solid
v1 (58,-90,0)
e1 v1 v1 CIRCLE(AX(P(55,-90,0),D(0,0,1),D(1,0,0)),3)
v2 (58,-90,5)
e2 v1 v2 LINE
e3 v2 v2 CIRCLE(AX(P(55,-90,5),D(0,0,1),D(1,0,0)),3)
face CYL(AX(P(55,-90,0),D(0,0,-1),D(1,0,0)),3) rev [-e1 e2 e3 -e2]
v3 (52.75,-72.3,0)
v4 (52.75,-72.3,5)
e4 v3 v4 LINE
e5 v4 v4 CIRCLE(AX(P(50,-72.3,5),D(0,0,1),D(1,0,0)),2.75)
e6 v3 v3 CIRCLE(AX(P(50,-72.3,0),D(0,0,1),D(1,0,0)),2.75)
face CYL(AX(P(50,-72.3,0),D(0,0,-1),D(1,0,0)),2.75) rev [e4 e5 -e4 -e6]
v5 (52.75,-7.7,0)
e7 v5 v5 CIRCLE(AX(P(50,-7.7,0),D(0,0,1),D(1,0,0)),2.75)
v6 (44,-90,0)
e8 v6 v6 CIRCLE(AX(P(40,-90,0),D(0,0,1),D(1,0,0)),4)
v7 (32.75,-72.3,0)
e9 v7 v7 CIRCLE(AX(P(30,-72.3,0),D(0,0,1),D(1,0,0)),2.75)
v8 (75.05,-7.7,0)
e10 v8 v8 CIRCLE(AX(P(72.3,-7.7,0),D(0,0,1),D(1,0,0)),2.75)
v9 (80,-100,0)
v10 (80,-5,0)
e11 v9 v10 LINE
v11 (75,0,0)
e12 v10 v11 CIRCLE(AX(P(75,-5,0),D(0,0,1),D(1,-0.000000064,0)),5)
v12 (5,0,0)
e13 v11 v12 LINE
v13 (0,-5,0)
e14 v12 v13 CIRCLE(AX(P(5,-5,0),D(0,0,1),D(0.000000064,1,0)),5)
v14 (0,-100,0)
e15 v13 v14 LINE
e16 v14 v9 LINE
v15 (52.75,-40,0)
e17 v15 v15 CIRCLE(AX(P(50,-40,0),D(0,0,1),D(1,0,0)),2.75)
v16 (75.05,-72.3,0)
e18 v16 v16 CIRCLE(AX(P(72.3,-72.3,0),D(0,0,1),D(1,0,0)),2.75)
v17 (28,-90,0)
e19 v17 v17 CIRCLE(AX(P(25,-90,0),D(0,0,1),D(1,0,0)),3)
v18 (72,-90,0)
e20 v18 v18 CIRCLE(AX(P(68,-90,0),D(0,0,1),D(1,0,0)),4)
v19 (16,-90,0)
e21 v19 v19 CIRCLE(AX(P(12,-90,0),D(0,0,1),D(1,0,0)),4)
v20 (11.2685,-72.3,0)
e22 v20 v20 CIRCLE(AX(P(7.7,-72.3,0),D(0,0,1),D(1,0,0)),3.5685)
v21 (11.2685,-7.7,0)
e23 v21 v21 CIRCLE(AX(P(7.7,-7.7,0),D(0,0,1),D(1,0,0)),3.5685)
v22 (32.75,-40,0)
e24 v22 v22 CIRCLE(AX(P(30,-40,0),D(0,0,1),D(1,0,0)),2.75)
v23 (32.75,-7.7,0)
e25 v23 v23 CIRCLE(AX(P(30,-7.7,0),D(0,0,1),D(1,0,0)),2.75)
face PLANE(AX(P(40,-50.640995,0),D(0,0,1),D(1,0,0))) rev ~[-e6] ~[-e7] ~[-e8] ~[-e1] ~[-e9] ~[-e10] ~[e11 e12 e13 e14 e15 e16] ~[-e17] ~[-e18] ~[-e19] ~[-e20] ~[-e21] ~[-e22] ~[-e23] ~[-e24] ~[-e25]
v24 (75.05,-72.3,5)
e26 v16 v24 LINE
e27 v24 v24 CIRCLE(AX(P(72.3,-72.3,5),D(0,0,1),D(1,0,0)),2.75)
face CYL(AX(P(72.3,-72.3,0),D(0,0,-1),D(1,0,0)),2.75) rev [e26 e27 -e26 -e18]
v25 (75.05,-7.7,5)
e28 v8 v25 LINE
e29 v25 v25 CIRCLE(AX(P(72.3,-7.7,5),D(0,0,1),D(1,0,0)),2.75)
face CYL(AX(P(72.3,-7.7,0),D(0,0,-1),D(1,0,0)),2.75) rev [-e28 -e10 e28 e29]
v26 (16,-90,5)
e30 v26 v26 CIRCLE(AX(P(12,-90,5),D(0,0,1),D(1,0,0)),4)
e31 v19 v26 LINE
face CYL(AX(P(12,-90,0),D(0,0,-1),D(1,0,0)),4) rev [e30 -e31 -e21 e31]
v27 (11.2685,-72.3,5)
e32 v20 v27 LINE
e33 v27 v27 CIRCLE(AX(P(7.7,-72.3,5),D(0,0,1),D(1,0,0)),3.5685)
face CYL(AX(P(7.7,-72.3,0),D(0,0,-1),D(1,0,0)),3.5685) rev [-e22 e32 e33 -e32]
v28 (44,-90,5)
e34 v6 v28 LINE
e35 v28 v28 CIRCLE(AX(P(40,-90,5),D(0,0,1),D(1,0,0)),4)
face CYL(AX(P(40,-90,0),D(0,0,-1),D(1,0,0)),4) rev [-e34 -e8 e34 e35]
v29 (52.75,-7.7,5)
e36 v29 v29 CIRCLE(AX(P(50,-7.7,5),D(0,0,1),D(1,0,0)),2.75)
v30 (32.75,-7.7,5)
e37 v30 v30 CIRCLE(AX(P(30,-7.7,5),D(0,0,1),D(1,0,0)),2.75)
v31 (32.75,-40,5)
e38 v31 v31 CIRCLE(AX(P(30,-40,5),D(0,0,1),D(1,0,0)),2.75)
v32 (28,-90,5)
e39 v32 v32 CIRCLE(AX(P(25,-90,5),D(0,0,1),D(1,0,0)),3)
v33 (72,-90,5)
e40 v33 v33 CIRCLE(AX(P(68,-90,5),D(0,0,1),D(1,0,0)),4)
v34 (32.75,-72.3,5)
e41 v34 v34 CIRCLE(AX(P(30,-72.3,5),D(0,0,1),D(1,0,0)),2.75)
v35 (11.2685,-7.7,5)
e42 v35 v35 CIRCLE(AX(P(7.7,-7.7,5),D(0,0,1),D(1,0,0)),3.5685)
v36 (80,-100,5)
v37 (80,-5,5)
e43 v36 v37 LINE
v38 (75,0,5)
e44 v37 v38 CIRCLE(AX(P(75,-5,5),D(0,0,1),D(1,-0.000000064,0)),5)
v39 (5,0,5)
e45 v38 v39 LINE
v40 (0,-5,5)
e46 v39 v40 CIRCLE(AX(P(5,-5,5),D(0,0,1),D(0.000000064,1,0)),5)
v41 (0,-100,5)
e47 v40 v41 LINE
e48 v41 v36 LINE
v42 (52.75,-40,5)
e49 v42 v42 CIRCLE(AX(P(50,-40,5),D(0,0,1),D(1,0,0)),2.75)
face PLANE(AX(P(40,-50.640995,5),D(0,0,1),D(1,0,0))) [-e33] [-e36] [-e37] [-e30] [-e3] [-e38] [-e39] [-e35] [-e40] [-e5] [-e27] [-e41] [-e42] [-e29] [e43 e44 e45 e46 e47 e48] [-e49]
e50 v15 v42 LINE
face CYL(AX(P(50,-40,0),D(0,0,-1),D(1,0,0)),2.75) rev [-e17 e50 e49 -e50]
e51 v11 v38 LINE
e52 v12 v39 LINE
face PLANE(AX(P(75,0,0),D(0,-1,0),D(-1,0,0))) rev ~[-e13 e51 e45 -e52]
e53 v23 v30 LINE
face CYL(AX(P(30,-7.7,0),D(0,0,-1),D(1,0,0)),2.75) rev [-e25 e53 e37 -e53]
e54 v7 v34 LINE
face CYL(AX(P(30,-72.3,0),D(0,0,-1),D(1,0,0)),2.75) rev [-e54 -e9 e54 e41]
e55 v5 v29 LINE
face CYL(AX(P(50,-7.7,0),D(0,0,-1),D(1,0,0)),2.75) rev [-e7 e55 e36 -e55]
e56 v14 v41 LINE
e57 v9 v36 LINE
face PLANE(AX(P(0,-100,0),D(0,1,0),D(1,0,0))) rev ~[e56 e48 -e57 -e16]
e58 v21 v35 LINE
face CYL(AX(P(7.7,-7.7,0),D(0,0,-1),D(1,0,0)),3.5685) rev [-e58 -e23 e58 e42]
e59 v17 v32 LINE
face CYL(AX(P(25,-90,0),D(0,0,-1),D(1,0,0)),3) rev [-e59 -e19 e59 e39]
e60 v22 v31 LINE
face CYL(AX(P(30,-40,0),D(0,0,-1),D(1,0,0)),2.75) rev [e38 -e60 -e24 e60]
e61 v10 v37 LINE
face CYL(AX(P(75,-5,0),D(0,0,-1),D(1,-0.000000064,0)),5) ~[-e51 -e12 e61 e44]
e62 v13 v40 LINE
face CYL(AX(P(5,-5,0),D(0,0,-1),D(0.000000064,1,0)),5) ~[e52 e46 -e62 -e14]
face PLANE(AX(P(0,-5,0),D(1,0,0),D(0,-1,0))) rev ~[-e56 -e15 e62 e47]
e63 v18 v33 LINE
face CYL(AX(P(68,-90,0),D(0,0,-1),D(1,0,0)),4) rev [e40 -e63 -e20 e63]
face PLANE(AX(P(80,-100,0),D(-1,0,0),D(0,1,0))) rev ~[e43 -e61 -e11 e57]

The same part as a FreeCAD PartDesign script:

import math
import FreeCAD as App
import Part
import Sketcher

V = App.Vector
Q = App.Units.Quantity

doc = App.newDocument("Part")
body = doc.addObject("PartDesign::Body", "Body")

# Sketch on XY plane
sketch1 = body.newObject("Sketcher::SketchObject", "Sketch")
sketch1.AttachmentSupport = (doc.getObject("XY_Plane"), [""])
sketch1.MapMode = "FlatFace"
sketch1.addGeometry(Part.ArcOfCircle(Part.Circle(V(5, -5, 0), V(0, 0, 1), 5), math.radians(90), math.radians(180)), False)
sketch1.addGeometry(Part.LineSegment(V(0, -5, 0), V(0, -100, 0)), False)
sketch1.addGeometry(Part.LineSegment(V(0, -100, 0), V(80, -100, 0)), False)
sketch1.addGeometry(Part.LineSegment(V(80, -100, 0), V(80, -5, 0)), False)
sketch1.addGeometry(Part.ArcOfCircle(Part.Circle(V(75, -5, 0), V(0, 0, 1), 5), math.radians(0), math.radians(90)), False)
sketch1.addGeometry(Part.LineSegment(V(75, 0, 0), V(5, 0, 0)), False)
sketch1.addGeometry(Part.Circle(V(12, -90, 0), V(0, 0, 1), 4), False)
sketch1.addGeometry(Part.Circle(V(7.7, -72.3, 0), V(0, 0, 1), 3.6), False)
sketch1.addGeometry(Part.Circle(V(25, -90, 0), V(0, 0, 1), 3), False)
sketch1.addGeometry(Part.Circle(V(30, -72.3, 0), V(0, 0, 1), 2.8), False)
sketch1.addGeometry(Part.Circle(V(40, -90, 0), V(0, 0, 1), 4), False)
sketch1.addGeometry(Part.Circle(V(55, -90, 0), V(0, 0, 1), 3), False)
sketch1.addGeometry(Part.Circle(V(50, -72.3, 0), V(0, 0, 1), 2.8), False)
sketch1.addGeometry(Part.Circle(V(68, -90, 0), V(0, 0, 1), 4), False)
sketch1.addGeometry(Part.Circle(V(72.3, -72.3, 0), V(0, 0, 1), 2.8), False)
sketch1.addGeometry(Part.Circle(V(30, -40, 0), V(0, 0, 1), 2.8), False)
sketch1.addGeometry(Part.Circle(V(7.7, -7.7, 0), V(0, 0, 1), 3.6), False)
sketch1.addGeometry(Part.Circle(V(30, -7.7, 0), V(0, 0, 1), 2.8), False)
sketch1.addGeometry(Part.Circle(V(50, -40, 0), V(0, 0, 1), 2.8), False)
sketch1.addGeometry(Part.Circle(V(50, -7.7, 0), V(0, 0, 1), 2.8), False)
sketch1.addGeometry(Part.Circle(V(72.3, -7.7, 0), V(0, 0, 1), 2.8), False)
sketch1.addConstraint(Sketcher.Constraint("Tangent", 0, 2, 1, 1))
sketch1.addConstraint(Sketcher.Constraint("Coincident", 1, 2, 2, 1))
sketch1.addConstraint(Sketcher.Constraint("Coincident", 2, 2, 3, 1))
sketch1.addConstraint(Sketcher.Constraint("Tangent", 3, 2, 4, 1))
sketch1.addConstraint(Sketcher.Constraint("Tangent", 4, 2, 5, 1))
sketch1.addConstraint(Sketcher.Constraint("Tangent", 5, 2, 0, 1))
sketch1.addConstraint(Sketcher.Constraint("Vertical", 1))
sketch1.addConstraint(Sketcher.Constraint("Horizontal", 2))
sketch1.addConstraint(Sketcher.Constraint("Vertical", 3))
sketch1.addConstraint(Sketcher.Constraint("Horizontal", 5))
sketch1.addConstraint(Sketcher.Constraint("Equal", 0, 4))
sketch1.addConstraint(Sketcher.Constraint("Equal", 6, 10))
sketch1.addConstraint(Sketcher.Constraint("Equal", 8, 11))
sketch1.addConstraint(Sketcher.Constraint("Equal", 9, 12))
sketch1.addConstraint(Sketcher.Constraint("Equal", 10, 13))
sketch1.addConstraint(Sketcher.Constraint("Equal", 12, 14))
sketch1.addConstraint(Sketcher.Constraint("Equal", 14, 15))
sketch1.addConstraint(Sketcher.Constraint("Equal", 7, 16))
sketch1.addConstraint(Sketcher.Constraint("Equal", 15, 17))
sketch1.addConstraint(Sketcher.Constraint("Equal", 17, 18))
sketch1.addConstraint(Sketcher.Constraint("Equal", 18, 19))
sketch1.addConstraint(Sketcher.Constraint("Equal", 19, 20))
sketch1.addConstraint(Sketcher.Constraint("PointOnObject", 0, 2, -2))
sketch1.addConstraint(Sketcher.Constraint("PointOnObject", 4, 2, -1))
sketch1.addConstraint(Sketcher.Constraint("Horizontal", 6, 3, 8, 3))
sketch1.addConstraint(Sketcher.Constraint("Horizontal", 7, 3, 9, 3))
sketch1.addConstraint(Sketcher.Constraint("Horizontal", 8, 3, 10, 3))
sketch1.addConstraint(Sketcher.Constraint("Horizontal", 10, 3, 11, 3))
sketch1.addConstraint(Sketcher.Constraint("Horizontal", 9, 3, 12, 3))
sketch1.addConstraint(Sketcher.Constraint("Horizontal", 11, 3, 13, 3))
sketch1.addConstraint(Sketcher.Constraint("Horizontal", 12, 3, 14, 3))
sketch1.addConstraint(Sketcher.Constraint("Horizontal", 16, 3, 17, 3))
sketch1.addConstraint(Sketcher.Constraint("Horizontal", 15, 3, 18, 3))
sketch1.addConstraint(Sketcher.Constraint("Horizontal", 17, 3, 19, 3))
sketch1.addConstraint(Sketcher.Constraint("Horizontal", 19, 3, 20, 3))
sketch1.addConstraint(Sketcher.Constraint("Vertical", 9, 3, 15, 3))
sketch1.addConstraint(Sketcher.Constraint("Vertical", 7, 3, 16, 3))
sketch1.addConstraint(Sketcher.Constraint("Vertical", 15, 3, 17, 3))
sketch1.addConstraint(Sketcher.Constraint("Vertical", 12, 3, 18, 3))
sketch1.addConstraint(Sketcher.Constraint("Vertical", 18, 3, 19, 3))
sketch1.addConstraint(Sketcher.Constraint("Vertical", 14, 3, 20, 3))
sketch1.addConstraint(Sketcher.Constraint("Diameter", 6, Q("8 mm")))
sketch1.addConstraint(Sketcher.Constraint("Diameter", 8, Q("6 mm")))
sketch1.addConstraint(Sketcher.Constraint("Radius", 0, Q("5 mm")))
sketch1.addConstraint(Sketcher.Constraint("Diameter", 9, Q("5.5 mm")))
sketch1.addConstraint(Sketcher.Constraint("DistanceX", 2, 1, 2, 2, Q("80 mm")))
sketch1.addConstraint(Sketcher.Constraint("DistanceY", 1, 2, 1, 1, Q("95 mm")))
sketch1.addConstraint(Sketcher.Constraint("Diameter", 7, Q("7.137 mm")))
sketch1.addConstraint(Sketcher.Constraint("DistanceX", -1, 1, 6, 3, Q("12 mm")))
sketch1.addConstraint(Sketcher.Constraint("DistanceY", 6, 3, -1, 1, Q("90 mm")))
sketch1.addConstraint(Sketcher.Constraint("DistanceX", -1, 1, 8, 3, Q("25 mm")))
sketch1.addConstraint(Sketcher.Constraint("DistanceX", -1, 1, 9, 3, Q("30 mm")))
sketch1.addConstraint(Sketcher.Constraint("DistanceX", -1, 1, 10, 3, Q("40 mm")))
sketch1.addConstraint(Sketcher.Constraint("DistanceX", -1, 1, 11, 3, Q("55 mm")))
sketch1.addConstraint(Sketcher.Constraint("DistanceX", -1, 1, 12, 3, Q("50 mm")))
sketch1.addConstraint(Sketcher.Constraint("DistanceX", -1, 1, 13, 3, Q("68 mm")))
sketch1.addConstraint(Sketcher.Constraint("DistanceY", 15, 3, -1, 1, Q("40 mm")))
sketch1.addConstraint(Sketcher.Constraint("DistanceX", -1, 1, 7, 3, Q("7.7 mm")))
sketch1.addConstraint(Sketcher.Constraint("DistanceY", 7, 3, -1, 1, Q("72.3 mm")))
sketch1.addConstraint(Sketcher.Constraint("DistanceX", -1, 1, 14, 3, Q("72.3 mm")))
sketch1.addConstraint(Sketcher.Constraint("DistanceY", 16, 3, -1, 1, Q("7.7 mm")))
pad1 = body.newObject("PartDesign::Pad", "Pad")
pad1.Profile = sketch1
pad1.Length = 5

doc.recompute()
